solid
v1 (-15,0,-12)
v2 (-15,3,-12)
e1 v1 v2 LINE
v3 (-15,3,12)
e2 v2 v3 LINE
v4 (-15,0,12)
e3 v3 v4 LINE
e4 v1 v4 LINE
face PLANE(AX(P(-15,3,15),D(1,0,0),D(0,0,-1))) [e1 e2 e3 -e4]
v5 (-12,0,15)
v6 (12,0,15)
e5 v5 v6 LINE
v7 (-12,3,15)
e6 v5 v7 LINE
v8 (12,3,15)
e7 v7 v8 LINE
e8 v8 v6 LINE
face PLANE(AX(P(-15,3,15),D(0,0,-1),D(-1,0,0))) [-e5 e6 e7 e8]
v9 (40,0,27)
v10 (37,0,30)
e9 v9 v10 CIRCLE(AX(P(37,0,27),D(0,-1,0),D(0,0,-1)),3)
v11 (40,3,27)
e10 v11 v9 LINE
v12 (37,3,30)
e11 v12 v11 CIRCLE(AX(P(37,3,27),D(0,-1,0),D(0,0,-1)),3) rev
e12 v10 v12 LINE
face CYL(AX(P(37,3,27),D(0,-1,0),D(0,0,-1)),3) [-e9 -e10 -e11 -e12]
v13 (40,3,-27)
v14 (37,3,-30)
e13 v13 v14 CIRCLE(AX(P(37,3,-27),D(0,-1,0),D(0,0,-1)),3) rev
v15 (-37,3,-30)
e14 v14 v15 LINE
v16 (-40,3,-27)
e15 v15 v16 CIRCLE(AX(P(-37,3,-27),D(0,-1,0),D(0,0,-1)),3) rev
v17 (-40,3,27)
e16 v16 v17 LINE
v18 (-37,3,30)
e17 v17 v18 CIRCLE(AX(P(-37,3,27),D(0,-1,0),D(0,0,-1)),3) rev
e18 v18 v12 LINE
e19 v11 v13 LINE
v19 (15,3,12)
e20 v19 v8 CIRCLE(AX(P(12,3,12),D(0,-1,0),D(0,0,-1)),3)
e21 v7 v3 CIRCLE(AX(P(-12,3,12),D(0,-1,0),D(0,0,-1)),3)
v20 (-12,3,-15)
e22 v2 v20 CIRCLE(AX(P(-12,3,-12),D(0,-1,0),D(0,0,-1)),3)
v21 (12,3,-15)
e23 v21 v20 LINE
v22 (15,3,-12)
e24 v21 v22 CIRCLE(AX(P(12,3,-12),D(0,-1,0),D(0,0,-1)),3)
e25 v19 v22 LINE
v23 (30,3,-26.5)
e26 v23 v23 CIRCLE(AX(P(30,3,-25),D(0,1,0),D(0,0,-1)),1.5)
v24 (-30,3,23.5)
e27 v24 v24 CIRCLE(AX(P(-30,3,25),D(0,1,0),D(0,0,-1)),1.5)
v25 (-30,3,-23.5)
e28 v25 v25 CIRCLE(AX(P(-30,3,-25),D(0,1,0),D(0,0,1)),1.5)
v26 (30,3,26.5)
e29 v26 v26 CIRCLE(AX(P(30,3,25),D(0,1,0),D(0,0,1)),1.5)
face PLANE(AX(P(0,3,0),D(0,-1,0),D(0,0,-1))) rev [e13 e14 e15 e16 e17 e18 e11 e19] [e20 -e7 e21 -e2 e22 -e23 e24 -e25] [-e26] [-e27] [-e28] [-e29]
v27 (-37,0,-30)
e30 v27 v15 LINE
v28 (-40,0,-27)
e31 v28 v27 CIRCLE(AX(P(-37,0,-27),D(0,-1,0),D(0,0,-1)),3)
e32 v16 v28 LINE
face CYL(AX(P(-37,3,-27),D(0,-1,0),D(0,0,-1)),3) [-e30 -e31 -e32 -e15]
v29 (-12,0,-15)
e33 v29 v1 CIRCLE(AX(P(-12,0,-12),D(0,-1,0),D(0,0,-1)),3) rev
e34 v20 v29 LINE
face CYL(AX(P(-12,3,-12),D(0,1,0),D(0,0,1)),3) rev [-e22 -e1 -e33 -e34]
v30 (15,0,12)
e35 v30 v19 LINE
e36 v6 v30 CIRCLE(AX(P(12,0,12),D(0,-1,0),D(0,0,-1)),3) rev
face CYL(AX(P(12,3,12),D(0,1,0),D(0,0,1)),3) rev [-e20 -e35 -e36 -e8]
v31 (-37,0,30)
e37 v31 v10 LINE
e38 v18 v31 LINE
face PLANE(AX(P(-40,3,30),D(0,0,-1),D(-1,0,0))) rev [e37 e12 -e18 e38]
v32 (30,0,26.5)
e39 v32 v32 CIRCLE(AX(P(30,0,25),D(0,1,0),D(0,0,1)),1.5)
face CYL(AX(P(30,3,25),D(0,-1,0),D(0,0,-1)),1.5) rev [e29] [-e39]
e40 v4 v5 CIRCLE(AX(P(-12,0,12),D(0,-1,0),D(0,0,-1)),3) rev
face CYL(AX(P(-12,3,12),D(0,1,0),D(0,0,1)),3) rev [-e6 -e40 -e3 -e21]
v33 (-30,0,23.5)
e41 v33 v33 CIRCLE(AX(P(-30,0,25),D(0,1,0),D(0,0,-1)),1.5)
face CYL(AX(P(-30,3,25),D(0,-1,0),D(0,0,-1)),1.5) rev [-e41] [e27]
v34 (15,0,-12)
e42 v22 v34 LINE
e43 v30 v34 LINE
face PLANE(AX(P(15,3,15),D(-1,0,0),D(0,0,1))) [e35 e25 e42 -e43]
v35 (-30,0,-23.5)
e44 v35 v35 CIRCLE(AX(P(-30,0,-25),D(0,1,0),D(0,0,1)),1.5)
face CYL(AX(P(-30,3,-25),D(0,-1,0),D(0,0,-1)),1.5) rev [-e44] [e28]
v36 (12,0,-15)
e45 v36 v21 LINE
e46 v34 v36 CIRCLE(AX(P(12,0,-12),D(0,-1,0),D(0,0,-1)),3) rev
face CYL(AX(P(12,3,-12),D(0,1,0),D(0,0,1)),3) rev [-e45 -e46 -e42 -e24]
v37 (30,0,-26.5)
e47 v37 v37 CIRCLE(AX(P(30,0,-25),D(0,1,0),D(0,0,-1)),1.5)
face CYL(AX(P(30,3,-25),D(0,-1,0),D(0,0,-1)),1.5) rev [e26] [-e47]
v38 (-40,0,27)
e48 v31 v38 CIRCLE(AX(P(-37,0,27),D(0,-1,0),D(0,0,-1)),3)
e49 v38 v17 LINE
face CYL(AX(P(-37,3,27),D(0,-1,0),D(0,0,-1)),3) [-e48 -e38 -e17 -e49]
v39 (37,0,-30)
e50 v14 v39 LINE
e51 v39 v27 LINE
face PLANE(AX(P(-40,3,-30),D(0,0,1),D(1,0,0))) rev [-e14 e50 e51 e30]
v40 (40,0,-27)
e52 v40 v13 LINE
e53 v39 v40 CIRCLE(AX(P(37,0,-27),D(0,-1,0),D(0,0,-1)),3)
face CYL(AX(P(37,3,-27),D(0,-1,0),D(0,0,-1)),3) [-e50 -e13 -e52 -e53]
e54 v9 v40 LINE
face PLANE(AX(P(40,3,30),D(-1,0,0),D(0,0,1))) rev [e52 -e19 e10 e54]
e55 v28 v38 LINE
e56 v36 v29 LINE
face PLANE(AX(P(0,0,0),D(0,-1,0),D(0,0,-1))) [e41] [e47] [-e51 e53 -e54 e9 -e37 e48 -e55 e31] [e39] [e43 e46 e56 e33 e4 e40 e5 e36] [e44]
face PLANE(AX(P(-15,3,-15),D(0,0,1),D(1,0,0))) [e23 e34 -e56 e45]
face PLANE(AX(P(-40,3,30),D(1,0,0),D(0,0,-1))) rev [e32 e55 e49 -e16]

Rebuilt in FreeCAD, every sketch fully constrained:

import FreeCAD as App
import Part
import Sketcher


def edges_at(feature, points):
    """Names of the edges that pass closest to the given points."""
    edges = feature.Shape.Edges
    near = lambda p: min(range(len(edges)), key=lambda i: edges[i].distToShape(Part.Vertex(*p))[0])
    return sorted({f"Edge{near(p) + 1}" for p in points})

doc = App.newDocument("Part")
body = doc.addObject("PartDesign::Body", "Body")

# Sketch on XZ plane
sketch1 = body.newObject("Sketcher::SketchObject", "Sketch")
sketch1.AttachmentSupport = (doc.getObject("XZ_Plane"), [""])
sketch1.MapMode = "FlatFace"
sketch1.addGeometry([
    Part.LineSegment(App.Vector(-40, -30, 0), App.Vector(-40, 30, 0)),  # 0
    Part.LineSegment(App.Vector(-40, 30, 0), App.Vector(40, 30, 0)),  # 1
    Part.LineSegment(App.Vector(40, 30, 0), App.Vector(40, -30, 0)),  # 2
    Part.LineSegment(App.Vector(40, -30, 0), App.Vector(-40, -30, 0)),  # 3
    Part.Circle(App.Vector(-30, 25, 0), App.Vector(0, 0, 1), 1.5),  # 4
    Part.Circle(App.Vector(30, 25, 0), App.Vector(0, 0, 1), 1.5),  # 5
    Part.Circle(App.Vector(-30, -25, 0), App.Vector(0, 0, 1), 1.5),  # 6
    Part.LineSegment(App.Vector(15, 15, 0), App.Vector(-15, 15, 0)),  # 7
    Part.LineSegment(App.Vector(-15, 15, 0), App.Vector(-15, -15, 0)),  # 8
    Part.LineSegment(App.Vector(-15, -15, 0), App.Vector(15, -15, 0)),  # 9
    Part.LineSegment(App.Vector(15, -15, 0), App.Vector(15, 15, 0)),  # 10
    Part.Circle(App.Vector(30, -25, 0), App.Vector(0, 0, 1), 1.5),  # 11
], False)
sketch1.addConstraint([
    Sketcher.Constraint("Coincident", 0, 2, 1, 1),
    Sketcher.Constraint("Coincident", 1, 2, 2, 1),
    Sketcher.Constraint("Coincident", 2, 2, 3, 1),
    Sketcher.Constraint("Coincident", 3, 2, 0, 1),
    Sketcher.Constraint("Coincident", 7, 2, 8, 1),
    Sketcher.Constraint("Coincident", 8, 2, 9, 1),
    Sketcher.Constraint("Coincident", 9, 2, 10, 1),
    Sketcher.Constraint("Coincident", 10, 2, 7, 1),
    Sketcher.Constraint("Vertical", 0),
    Sketcher.Constraint("Horizontal", 1),
    Sketcher.Constraint("Vertical", 2),
    Sketcher.Constraint("Horizontal", 3),
    Sketcher.Constraint("Horizontal", 7),
    Sketcher.Constraint("Vertical", 8),
    Sketcher.Constraint("Horizontal", 9),
    Sketcher.Constraint("Vertical", 10),
    Sketcher.Constraint("Equal", 4, 5),
    Sketcher.Constraint("Equal", 5, 6),
    Sketcher.Constraint("Equal", 6, 11),
    Sketcher.Constraint("Symmetric", 5, 3, 6, 3, -1, 1),
    Sketcher.Constraint("Symmetric", 4, 3, 11, 3, -1, 1),
    Sketcher.Constraint("Symmetric", 0, 2, 2, 2, -1, 1),
    Sketcher.Constraint("Symmetric", 7, 2, 9, 2, -1, 1),
    Sketcher.Constraint("Symmetric", 4, 3, 5, 3, -2),
    Sketcher.Constraint("Equal", 9, 8),
    Sketcher.Constraint("Diameter", 4, 3.0),
    Sketcher.Constraint("DistanceX", 1, 1, 1, 2, 80.0),
    Sketcher.Constraint("DistanceX", 7, 2, 7, 1, 30.0),
    Sketcher.Constraint("DistanceY", 0, 1, 0, 2, 60.0),
    Sketcher.Constraint("DistanceX", 4, 3, -1, 1, 30.0),
    Sketcher.Constraint("DistanceY", -1, 1, 4, 3, 25.0),
])
pad1 = body.newObject("PartDesign::Pad", "Pad")
pad1.Profile = sketch1
pad1.Length = 3
pad1.Reversed = True
doc.recompute()

fillet = body.newObject("PartDesign::Fillet", "Fillet")
fillet.Base = (pad1, edges_at(pad1, [
    (40, 1.5, 30),
    (-40, 1.5, 30),
    (-40, 1.5, -30),
    (40, 1.5, -30),
]))
fillet.Radius = 3
doc.recompute()

fillet2 = body.newObject("PartDesign::Fillet", "Fillet001")
fillet2.Base = (fillet, edges_at(fillet, [
    (15, 1.5, 15),
    (15, 1.5, -15),
    (-15, 1.5, -15),
    (-15, 1.5, 15),
]))
fillet2.Radius = 3

doc.recompute()
